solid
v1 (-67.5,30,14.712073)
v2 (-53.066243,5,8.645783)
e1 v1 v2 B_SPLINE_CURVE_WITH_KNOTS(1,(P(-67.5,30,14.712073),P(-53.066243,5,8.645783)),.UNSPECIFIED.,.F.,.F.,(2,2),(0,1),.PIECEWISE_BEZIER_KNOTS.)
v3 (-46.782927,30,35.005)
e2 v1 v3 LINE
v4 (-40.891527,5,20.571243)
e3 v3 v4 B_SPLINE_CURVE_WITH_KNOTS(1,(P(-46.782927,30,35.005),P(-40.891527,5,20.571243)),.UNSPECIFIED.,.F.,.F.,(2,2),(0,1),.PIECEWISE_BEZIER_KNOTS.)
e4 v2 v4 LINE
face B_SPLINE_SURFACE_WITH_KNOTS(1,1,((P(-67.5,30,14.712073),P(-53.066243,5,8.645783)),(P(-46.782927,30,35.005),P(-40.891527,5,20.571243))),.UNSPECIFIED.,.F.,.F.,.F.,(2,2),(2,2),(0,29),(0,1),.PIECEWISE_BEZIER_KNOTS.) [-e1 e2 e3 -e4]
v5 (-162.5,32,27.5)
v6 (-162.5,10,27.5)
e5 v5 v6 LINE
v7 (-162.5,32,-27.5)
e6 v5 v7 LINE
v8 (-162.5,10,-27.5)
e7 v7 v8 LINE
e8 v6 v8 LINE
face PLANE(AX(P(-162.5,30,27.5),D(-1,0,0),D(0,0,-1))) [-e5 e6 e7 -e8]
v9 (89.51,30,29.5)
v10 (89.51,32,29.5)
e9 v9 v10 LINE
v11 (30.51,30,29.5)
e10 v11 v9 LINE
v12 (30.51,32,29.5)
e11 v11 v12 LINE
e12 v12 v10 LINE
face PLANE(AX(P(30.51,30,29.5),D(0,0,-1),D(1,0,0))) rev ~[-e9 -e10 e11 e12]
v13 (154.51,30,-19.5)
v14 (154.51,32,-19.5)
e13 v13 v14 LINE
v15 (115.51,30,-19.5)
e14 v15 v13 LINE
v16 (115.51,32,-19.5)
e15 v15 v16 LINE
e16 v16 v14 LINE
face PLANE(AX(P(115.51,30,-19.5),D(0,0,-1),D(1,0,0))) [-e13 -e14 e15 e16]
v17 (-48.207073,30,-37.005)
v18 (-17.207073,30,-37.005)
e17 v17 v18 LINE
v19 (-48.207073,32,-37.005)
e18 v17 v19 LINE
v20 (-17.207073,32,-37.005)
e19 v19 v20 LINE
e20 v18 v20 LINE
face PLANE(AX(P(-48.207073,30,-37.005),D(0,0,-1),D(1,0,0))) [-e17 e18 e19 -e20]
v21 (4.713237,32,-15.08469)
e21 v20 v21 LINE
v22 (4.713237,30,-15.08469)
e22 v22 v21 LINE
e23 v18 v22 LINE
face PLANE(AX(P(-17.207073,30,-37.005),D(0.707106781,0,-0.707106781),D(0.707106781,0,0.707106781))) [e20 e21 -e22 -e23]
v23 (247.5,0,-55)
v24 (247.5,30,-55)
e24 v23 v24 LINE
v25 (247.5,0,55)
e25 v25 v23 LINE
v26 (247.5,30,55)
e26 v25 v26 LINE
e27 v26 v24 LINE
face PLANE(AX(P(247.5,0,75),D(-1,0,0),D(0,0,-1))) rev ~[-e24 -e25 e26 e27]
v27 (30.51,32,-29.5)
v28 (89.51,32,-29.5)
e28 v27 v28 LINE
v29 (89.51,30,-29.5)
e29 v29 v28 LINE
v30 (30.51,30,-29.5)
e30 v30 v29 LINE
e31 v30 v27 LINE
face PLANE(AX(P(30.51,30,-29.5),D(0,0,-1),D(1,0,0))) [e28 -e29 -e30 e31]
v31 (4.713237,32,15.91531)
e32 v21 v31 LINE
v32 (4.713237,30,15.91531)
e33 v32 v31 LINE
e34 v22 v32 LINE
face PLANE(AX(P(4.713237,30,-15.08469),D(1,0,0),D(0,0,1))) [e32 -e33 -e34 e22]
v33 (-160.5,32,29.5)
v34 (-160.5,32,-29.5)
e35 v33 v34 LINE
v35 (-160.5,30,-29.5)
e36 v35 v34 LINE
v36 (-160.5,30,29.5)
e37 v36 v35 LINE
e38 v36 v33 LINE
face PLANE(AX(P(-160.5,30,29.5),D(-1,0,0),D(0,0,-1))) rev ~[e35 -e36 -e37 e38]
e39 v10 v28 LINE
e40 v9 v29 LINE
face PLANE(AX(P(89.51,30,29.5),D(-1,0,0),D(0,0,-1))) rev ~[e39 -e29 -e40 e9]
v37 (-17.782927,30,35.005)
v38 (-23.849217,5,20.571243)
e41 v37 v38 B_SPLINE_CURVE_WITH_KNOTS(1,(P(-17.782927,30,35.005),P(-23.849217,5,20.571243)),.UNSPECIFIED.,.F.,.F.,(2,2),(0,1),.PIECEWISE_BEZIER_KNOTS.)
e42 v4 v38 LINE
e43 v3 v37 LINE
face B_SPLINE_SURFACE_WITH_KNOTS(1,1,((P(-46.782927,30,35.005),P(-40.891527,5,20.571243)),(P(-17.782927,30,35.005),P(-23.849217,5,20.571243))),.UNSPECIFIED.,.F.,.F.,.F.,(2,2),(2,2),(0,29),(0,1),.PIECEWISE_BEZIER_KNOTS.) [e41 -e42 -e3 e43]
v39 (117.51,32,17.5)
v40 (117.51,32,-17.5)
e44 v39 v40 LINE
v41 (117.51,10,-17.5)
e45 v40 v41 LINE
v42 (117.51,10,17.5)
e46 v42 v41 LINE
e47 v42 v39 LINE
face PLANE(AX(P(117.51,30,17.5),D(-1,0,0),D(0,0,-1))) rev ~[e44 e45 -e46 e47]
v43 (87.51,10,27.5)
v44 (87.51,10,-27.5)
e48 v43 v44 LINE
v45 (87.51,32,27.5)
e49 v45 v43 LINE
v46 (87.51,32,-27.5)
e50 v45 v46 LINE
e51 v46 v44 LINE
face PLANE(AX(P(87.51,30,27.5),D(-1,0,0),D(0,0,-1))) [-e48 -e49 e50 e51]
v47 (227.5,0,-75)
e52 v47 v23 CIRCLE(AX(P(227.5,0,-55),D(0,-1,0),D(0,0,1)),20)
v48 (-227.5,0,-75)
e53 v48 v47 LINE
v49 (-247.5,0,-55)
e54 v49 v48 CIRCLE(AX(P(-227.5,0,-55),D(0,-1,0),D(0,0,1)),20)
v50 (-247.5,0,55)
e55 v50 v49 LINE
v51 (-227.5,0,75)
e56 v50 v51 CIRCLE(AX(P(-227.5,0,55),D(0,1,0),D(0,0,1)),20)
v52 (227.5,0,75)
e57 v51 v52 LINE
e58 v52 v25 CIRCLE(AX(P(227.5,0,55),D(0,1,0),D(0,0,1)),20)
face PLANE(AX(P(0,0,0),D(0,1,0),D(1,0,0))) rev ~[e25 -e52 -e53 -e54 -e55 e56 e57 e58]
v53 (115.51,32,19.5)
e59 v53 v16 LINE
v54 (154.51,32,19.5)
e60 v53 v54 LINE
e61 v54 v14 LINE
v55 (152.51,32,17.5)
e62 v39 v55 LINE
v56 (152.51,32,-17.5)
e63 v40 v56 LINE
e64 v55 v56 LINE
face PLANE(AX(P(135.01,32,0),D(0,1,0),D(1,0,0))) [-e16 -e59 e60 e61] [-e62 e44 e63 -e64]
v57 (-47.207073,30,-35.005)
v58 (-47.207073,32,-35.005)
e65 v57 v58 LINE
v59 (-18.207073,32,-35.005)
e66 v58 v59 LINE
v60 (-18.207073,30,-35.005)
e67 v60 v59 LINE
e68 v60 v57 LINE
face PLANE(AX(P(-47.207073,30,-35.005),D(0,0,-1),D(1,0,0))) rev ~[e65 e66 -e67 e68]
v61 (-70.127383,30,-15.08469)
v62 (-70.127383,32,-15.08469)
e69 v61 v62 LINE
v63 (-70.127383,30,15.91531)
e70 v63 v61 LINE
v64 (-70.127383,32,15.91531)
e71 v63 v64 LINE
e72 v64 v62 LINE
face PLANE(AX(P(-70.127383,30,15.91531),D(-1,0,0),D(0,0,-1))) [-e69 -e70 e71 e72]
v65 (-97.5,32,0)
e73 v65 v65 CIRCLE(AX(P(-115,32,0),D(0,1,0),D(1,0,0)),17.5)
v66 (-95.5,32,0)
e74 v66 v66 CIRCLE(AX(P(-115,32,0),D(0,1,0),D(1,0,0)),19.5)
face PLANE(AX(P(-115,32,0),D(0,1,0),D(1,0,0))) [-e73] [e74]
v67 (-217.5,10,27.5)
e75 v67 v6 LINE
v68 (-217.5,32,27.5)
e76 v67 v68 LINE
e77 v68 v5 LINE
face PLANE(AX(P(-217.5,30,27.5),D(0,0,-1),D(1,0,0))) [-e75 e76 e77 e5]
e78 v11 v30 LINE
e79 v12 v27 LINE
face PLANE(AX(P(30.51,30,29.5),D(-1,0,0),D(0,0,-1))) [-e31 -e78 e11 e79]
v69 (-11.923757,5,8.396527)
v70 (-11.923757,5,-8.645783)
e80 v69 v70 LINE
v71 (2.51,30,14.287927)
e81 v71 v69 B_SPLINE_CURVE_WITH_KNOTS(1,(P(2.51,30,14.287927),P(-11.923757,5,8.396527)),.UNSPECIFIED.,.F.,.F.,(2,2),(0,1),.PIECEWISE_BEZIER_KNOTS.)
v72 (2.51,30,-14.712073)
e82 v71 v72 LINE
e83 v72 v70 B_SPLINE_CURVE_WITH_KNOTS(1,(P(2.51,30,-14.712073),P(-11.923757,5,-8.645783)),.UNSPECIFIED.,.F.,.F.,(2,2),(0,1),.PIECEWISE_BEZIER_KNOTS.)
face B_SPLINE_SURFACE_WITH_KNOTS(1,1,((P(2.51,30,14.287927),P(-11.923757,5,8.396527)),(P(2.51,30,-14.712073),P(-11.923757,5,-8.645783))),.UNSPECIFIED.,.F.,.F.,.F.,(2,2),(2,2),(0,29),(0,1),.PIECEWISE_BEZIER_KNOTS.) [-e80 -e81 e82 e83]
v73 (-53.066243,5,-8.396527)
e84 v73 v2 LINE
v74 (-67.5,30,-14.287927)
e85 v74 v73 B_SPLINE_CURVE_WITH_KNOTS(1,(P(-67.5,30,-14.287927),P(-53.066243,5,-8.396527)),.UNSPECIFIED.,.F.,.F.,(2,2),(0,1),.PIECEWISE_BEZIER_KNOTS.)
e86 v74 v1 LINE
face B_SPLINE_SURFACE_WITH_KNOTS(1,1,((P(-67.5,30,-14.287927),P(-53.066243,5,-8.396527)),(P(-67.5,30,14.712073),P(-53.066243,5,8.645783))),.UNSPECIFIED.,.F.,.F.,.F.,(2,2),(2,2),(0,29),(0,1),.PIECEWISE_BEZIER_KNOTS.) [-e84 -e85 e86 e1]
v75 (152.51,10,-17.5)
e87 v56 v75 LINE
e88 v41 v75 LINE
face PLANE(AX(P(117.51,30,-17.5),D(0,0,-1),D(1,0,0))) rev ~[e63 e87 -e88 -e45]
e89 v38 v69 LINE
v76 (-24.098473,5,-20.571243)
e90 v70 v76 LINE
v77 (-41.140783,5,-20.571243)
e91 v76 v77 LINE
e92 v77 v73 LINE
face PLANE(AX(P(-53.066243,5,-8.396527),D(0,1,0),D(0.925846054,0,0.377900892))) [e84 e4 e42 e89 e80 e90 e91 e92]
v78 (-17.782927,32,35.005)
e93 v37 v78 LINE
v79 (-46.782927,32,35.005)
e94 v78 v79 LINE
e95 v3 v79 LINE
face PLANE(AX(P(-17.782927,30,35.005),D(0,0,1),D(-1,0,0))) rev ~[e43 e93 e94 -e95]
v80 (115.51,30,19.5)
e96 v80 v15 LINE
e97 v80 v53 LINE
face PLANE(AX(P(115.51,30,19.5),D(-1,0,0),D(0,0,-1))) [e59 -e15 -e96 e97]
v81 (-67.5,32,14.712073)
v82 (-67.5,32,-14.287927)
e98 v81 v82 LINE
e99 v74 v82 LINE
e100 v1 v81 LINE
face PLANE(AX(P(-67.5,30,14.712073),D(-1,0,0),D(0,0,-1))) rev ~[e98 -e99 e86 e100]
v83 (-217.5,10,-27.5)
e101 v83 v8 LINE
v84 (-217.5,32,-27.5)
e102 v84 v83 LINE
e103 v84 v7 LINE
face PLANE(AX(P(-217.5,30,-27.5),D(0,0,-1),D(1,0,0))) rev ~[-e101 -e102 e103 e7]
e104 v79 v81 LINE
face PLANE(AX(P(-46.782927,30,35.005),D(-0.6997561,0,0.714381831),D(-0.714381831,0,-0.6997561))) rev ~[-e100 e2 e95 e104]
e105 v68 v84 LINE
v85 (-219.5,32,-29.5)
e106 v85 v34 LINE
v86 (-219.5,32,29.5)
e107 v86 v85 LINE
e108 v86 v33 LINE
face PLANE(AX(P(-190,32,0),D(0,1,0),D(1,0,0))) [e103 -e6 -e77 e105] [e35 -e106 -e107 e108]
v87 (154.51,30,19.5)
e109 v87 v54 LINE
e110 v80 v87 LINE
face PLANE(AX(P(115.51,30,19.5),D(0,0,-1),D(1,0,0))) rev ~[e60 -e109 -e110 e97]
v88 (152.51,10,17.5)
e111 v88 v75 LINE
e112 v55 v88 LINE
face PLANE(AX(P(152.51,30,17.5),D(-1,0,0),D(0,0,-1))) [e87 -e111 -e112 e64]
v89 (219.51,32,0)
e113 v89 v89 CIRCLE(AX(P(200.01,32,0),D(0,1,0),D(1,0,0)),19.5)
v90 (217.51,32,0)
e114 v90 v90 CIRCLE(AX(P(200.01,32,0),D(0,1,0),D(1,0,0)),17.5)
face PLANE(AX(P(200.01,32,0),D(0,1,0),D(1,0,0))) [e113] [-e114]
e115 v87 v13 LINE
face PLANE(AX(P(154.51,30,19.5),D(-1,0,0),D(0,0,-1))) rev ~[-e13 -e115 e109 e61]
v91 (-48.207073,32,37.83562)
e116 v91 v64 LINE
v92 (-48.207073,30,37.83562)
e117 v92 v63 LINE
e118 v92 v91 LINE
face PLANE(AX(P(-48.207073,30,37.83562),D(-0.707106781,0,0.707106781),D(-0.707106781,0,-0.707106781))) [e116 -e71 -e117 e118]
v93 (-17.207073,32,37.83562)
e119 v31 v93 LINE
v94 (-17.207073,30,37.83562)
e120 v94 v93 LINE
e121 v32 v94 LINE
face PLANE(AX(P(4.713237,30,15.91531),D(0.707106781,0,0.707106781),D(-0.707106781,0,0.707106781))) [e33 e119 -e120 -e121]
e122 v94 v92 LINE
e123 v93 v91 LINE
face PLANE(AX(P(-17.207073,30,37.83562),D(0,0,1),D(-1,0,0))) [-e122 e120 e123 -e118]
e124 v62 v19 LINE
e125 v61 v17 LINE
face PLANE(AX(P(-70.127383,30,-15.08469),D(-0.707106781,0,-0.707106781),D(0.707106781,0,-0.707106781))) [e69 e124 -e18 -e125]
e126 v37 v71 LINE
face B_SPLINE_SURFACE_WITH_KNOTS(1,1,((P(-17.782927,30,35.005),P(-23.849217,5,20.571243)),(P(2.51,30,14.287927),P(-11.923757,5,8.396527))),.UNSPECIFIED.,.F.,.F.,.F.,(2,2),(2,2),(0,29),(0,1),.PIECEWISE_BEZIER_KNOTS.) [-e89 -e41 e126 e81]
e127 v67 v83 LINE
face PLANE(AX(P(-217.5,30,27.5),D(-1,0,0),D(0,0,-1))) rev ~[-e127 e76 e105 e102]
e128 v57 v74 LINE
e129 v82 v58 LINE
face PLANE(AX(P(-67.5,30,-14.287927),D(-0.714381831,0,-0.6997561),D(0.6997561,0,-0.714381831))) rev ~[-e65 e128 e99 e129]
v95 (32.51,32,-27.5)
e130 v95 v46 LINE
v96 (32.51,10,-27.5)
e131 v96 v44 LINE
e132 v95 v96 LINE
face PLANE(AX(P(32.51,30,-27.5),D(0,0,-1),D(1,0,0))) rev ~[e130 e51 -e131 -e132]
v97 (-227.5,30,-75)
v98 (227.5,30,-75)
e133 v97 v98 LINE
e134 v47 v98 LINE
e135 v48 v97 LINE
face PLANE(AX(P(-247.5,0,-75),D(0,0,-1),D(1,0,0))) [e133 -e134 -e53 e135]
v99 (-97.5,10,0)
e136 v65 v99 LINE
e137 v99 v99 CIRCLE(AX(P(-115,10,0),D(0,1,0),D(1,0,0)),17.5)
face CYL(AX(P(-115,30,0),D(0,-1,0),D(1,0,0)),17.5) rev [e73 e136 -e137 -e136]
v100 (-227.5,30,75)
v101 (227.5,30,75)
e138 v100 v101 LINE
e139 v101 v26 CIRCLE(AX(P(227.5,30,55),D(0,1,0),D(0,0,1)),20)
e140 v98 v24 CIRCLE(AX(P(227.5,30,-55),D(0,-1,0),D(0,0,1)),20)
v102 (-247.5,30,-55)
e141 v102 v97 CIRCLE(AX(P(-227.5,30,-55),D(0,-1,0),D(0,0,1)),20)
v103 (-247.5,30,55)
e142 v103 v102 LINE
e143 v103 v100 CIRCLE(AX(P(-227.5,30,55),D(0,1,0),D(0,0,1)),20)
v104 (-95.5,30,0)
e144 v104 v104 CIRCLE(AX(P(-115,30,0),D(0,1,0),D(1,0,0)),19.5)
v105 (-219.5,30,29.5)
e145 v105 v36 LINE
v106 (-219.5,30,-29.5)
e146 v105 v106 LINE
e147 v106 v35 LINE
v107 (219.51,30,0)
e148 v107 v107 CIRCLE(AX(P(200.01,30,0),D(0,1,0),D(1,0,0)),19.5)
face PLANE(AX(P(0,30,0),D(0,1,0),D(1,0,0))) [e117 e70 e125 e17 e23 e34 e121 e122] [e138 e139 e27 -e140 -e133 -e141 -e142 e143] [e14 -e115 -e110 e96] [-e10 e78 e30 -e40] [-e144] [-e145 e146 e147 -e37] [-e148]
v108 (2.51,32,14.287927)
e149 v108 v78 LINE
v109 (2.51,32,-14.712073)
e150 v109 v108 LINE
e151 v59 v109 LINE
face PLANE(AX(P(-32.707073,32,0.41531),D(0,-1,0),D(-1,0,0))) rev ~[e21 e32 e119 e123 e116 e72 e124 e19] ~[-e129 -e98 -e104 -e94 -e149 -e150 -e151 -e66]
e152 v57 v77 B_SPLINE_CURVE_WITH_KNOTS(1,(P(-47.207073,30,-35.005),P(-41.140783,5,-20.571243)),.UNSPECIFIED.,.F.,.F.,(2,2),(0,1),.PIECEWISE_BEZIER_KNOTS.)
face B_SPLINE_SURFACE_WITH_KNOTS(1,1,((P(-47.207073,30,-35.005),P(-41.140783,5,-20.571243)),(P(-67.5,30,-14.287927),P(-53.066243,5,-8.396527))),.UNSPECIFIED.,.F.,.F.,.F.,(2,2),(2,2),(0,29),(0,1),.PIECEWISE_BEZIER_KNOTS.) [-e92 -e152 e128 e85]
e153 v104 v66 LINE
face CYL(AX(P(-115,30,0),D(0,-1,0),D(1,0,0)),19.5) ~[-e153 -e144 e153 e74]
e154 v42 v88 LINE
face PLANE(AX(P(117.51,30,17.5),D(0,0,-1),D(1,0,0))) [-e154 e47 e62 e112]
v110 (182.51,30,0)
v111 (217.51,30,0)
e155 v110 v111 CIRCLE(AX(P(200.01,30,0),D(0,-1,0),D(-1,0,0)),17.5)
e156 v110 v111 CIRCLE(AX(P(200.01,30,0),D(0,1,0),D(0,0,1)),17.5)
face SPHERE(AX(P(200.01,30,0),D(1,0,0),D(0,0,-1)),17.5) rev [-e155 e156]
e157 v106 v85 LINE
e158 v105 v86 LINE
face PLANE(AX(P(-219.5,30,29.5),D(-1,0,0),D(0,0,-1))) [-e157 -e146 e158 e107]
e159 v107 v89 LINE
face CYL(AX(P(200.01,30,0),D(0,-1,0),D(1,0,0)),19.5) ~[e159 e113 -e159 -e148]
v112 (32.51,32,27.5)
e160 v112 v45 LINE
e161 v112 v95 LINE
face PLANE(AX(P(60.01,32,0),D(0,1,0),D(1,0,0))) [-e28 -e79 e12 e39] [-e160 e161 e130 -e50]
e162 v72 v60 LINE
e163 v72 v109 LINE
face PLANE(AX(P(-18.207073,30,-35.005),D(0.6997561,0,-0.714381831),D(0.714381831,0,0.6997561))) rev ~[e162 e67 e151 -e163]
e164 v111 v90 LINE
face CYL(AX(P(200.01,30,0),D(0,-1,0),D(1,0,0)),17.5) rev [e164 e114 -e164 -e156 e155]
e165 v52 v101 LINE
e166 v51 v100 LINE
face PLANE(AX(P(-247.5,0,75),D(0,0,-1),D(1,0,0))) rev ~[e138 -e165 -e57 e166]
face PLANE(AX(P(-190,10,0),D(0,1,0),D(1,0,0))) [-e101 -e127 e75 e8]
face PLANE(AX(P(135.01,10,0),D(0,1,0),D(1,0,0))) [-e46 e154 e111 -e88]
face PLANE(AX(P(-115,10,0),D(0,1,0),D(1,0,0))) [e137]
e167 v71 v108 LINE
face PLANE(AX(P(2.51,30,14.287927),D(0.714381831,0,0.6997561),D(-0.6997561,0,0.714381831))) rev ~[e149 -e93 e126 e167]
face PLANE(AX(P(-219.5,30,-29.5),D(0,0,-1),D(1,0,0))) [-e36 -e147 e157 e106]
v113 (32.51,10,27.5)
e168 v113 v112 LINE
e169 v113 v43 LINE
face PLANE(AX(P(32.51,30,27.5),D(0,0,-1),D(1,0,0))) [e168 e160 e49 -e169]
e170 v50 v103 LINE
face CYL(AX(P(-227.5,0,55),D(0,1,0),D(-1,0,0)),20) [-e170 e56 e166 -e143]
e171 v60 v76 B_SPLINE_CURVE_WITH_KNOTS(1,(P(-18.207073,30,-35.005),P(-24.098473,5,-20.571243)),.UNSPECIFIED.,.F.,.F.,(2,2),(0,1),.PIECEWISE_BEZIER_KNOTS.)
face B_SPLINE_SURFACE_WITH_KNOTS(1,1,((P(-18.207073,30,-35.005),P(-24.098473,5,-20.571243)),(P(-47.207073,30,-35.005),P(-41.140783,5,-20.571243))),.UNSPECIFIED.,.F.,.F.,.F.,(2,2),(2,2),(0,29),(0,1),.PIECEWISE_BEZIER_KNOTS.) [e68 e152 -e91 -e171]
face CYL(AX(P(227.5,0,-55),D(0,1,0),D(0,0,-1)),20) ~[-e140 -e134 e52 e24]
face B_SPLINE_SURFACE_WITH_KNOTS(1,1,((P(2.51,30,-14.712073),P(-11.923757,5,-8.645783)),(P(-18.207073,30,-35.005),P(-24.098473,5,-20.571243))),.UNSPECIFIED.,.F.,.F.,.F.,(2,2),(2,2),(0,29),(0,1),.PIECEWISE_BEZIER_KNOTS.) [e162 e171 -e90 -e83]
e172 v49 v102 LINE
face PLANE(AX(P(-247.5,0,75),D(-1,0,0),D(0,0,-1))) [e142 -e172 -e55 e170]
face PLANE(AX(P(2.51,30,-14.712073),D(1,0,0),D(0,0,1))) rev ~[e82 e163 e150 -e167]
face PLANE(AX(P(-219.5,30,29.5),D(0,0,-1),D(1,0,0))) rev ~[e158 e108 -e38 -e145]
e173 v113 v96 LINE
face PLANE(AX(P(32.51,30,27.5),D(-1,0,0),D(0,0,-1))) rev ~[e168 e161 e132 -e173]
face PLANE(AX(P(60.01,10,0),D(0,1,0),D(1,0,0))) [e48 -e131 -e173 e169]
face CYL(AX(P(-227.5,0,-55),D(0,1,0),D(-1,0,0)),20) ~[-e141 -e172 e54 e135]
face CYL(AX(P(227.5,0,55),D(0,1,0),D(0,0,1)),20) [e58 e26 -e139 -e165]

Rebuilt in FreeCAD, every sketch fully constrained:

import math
import FreeCAD as App
import Part
import Sketcher
from FreeCAD import Vector
Q = App.Units.Quantity


def edges_at(feature, points):
    """Names of the edges that pass closest to the given points."""
    edges = feature.Shape.Edges
    near = lambda p: min(range(len(edges)), key=lambda i: edges[i].distToShape(Part.Vertex(*p))[0])
    return sorted({f"Edge{near(p) + 1}" for p in points})

doc = App.newDocument("Part")
body = doc.addObject("PartDesign::Body", "Body")

sketch1 = body.newObject("Sketcher::SketchObject", "Sketch")
sketch1.AttachmentSupport = (doc.getObject("XZ_Plane"), [""])
sketch1.MapMode = "FlatFace"
sketch1.addGeometry([
    Part.LineSegment(Vector(-247.5, -75, 0), Vector(-247.5, 75, 0)),
    Part.LineSegment(Vector(-247.5, 75, 0), Vector(247.5, 75, 0)),
    Part.LineSegment(Vector(247.5, 75, 0), Vector(247.5, -75, 0)),
    Part.LineSegment(Vector(247.5, -75, 0), Vector(-247.5, -75, 0)),
], False)
sketch1.addConstraint([
    Sketcher.Constraint("Coincident", 0, 2, 1, 1),
    Sketcher.Constraint("Coincident", 1, 2, 2, 1),
    Sketcher.Constraint("Coincident", 2, 2, 3, 1),
    Sketcher.Constraint("Coincident", 3, 2, 0, 1),
    Sketcher.Constraint("Vertical", 0),
    Sketcher.Constraint("Horizontal", 1),
    Sketcher.Constraint("Vertical", 2),
    Sketcher.Constraint("Horizontal", 3),
    Sketcher.Constraint("Symmetric", 0, 2, 2, 2, -1, 1),
    Sketcher.Constraint("DistanceX", 1, 1, 1, 2, Q("495 mm")),
    Sketcher.Constraint("DistanceY", 0, 1, 0, 2, Q("150 mm")),
])
pad1 = body.newObject("PartDesign::Pad", "Pad")
pad1.Profile = sketch1
pad1.Length = 30
pad1.Reversed = True

sketch2 = body.newObject("Sketcher::SketchObject", "Sketch001")
sketch2.AttachmentSupport = (doc.getObject("XZ_Plane"), [""])
sketch2.MapMode = "FlatFace"
sketch2.AttachmentOffset = App.Placement(Vector(0, 0, -30), App.Rotation())
sketch2.addGeometry([
    Part.Circle(Vector(-115, 0, 0), Vector(0, 0, 1), 17.5),
    Part.LineSegment(Vector(-217.5, -27.5, 0), Vector(-217.5, 27.5, 0)),
    Part.LineSegment(Vector(-217.5, 27.5, 0), Vector(-162.5, 27.5, 0)),
    Part.LineSegment(Vector(-162.5, 27.5, 0), Vector(-162.5, -27.5, 0)),
    Part.LineSegment(Vector(-162.5, -27.5, 0), Vector(-217.5, -27.5, 0)),
], False)
sketch2.addConstraint([
    Sketcher.Constraint("Coincident", 1, 2, 2, 1),
    Sketcher.Constraint("Coincident", 2, 2, 3, 1),
    Sketcher.Constraint("Coincident", 3, 2, 4, 1),
    Sketcher.Constraint("Coincident", 4, 2, 1, 1),
    Sketcher.Constraint("Vertical", 1),
    Sketcher.Constraint("Horizontal", 2),
    Sketcher.Constraint("Vertical", 3),
    Sketcher.Constraint("Horizontal", 4),
    Sketcher.Constraint("PointOnObject", 0, 3, -1),
    Sketcher.Constraint("Equal", 4, 1),
    Sketcher.Constraint("Diameter", 0, Q("35 mm")),
    Sketcher.Constraint("DistanceX", 2, 1, 2, 2, Q("55 mm")),
    Sketcher.Constraint("DistanceX", 0, 3, -1, 1, Q("115 mm")),
    Sketcher.Constraint("DistanceX", 1, 2, -1, 1, Q("217.5 mm")),
    Sketcher.Constraint("DistanceY", -1, 1, 1, 2, Q("27.5 mm")),
])
pocket1 = body.newObject("PartDesign::Pocket", "Pocket")
pocket1.Profile = sketch2
pocket1.Length = 20
pocket1.Reversed = True

sketch3 = body.newObject("Sketcher::SketchObject", "Sketch002")
sketch3.AttachmentSupport = (doc.getObject("XZ_Plane"), [""])
sketch3.MapMode = "FlatFace"
sketch3.AttachmentOffset = App.Placement(Vector(0, 0, -30), App.Rotation())
sketch3.addGeometry([
    Part.LineSegment(Vector(-67.5, -14.287927, 0), Vector(-67.5, 14.712073, 0)),
    Part.LineSegment(Vector(-67.5, 14.712073, 0), Vector(-46.782927, 35.005, 0)),
    Part.LineSegment(Vector(-46.782927, 35.005, 0), Vector(-17.782927, 35.005, 0)),
    Part.LineSegment(Vector(-17.782927, 35.005, 0), Vector(2.51, 14.287927, 0)),
    Part.LineSegment(Vector(2.51, 14.287927, 0), Vector(2.51, -14.712073, 0)),
    Part.LineSegment(Vector(2.51, -14.712073, 0), Vector(-18.207073, -35.005, 0)),
    Part.LineSegment(Vector(-18.207073, -35.005, 0), Vector(-47.207073, -35.005, 0)),
    Part.LineSegment(Vector(-47.207073, -35.005, 0), Vector(-67.5, -14.287927, 0)),
], False)
sketch3.addConstraint([
    Sketcher.Constraint("Coincident", 0, 2, 1, 1),
    Sketcher.Constraint("Coincident", 1, 2, 2, 1),
    Sketcher.Constraint("Coincident", 2, 2, 3, 1),
    Sketcher.Constraint("Coincident", 3, 2, 4, 1),
    Sketcher.Constraint("Coincident", 4, 2, 5, 1),
    Sketcher.Constraint("Coincident", 5, 2, 6, 1),
    Sketcher.Constraint("Coincident", 6, 2, 7, 1),
    Sketcher.Constraint("Coincident", 7, 2, 0, 1),
    Sketcher.Constraint("Vertical", 0),
    Sketcher.Constraint("Horizontal", 2),
    Sketcher.Constraint("Vertical", 4),
    Sketcher.Constraint("Horizontal", 6),
    Sketcher.Constraint("Perpendicular", 1, 3),
    Sketcher.Constraint("Perpendicular", 3, 5),
    Sketcher.Constraint("Perpendicular", 5, 7),
    Sketcher.Constraint("Equal", 2, 6),
    Sketcher.Constraint("Equal", 6, 0),
    Sketcher.Constraint("Equal", 0, 4),
    Sketcher.Constraint("Equal", 1, 3),
    Sketcher.Constraint("DistanceX", 2, 1, 2, 2, Q("29 mm")),
    Sketcher.Constraint("Distance", 1, Q("29 mm")),
    Sketcher.Constraint("DistanceX", 0, 2, -1, 1, Q("67.5 mm")),
    Sketcher.Constraint("DistanceX", -1, 1, 3, 2, Q("2.51 mm")),
    Sketcher.Constraint("DistanceY", -1, 1, 1, 2, Q("35.005 mm")),
])
pocket2 = body.newObject("PartDesign::Pocket", "Pocket001")
pocket2.Profile = sketch3
pocket2.Length = 25
pocket2.Reversed = True
pocket2.TaperAngle = -30

sketch4 = body.newObject("Sketcher::SketchObject", "Sketch003")
sketch4.AttachmentSupport = (doc.getObject("XZ_Plane"), [""])
sketch4.MapMode = "FlatFace"
sketch4.AttachmentOffset = App.Placement(Vector(0, 0, -30), App.Rotation())
sketch4.addGeometry([
    Part.LineSegment(Vector(32.51, -27.5, 0), Vector(32.51, 27.5, 0)),
    Part.LineSegment(Vector(32.51, 27.5, 0), Vector(87.51, 27.5, 0)),
    Part.LineSegment(Vector(87.51, 27.5, 0), Vector(87.51, -27.5, 0)),
    Part.LineSegment(Vector(87.51, -27.5, 0), Vector(32.51, -27.5, 0)),
    Part.LineSegment(Vector(117.51, -17.5, 0), Vector(117.51, 17.5, 0)),
    Part.LineSegment(Vector(117.51, 17.5, 0), Vector(152.51, 17.5, 0)),
    Part.LineSegment(Vector(152.51, 17.5, 0), Vector(152.51, -17.5, 0)),
    Part.LineSegment(Vector(152.51, -17.5, 0), Vector(117.51, -17.5, 0)),
], False)
sketch4.addConstraint([
    Sketcher.Constraint("Coincident", 0, 2, 1, 1),
    Sketcher.Constraint("Coincident", 1, 2, 2, 1),
    Sketcher.Constraint("Coincident", 2, 2, 3, 1),
    Sketcher.Constraint("Coincident", 3, 2, 0, 1),
    Sketcher.Constraint("Coincident", 4, 2, 5, 1),
    Sketcher.Constraint("Coincident", 5, 2, 6, 1),
    Sketcher.Constraint("Coincident", 6, 2, 7, 1),
    Sketcher.Constraint("Coincident", 7, 2, 4, 1),
    Sketcher.Constraint("Vertical", 0),
    Sketcher.Constraint("Horizontal", 1),
    Sketcher.Constraint("Vertical", 2),
    Sketcher.Constraint("Horizontal", 3),
    Sketcher.Constraint("Vertical", 4),
    Sketcher.Constraint("Horizontal", 5),
    Sketcher.Constraint("Vertical", 6),
    Sketcher.Constraint("Horizontal", 7),
    Sketcher.Constraint("Equal", 3, 0),
    Sketcher.Constraint("Equal", 7, 4),
    Sketcher.Constraint("DistanceX", 1, 1, 1, 2, Q("55 mm")),
    Sketcher.Constraint("DistanceX", 5, 1, 5, 2, Q("35 mm")),
    Sketcher.Constraint("DistanceX", 1, 2, 4, 2, Q("30 mm")),
    Sketcher.Constraint("DistanceY", 4, 2, 1, 2, Q("10 mm")),
    Sketcher.Constraint("DistanceY", -1, 1, 0, 2, Q("27.5 mm")),
    Sketcher.Constraint("DistanceX", -1, 1, 0, 2, Q("32.51 mm")),
])
pocket3 = body.newObject("PartDesign::Pocket", "Pocket002")
pocket3.Profile = sketch4
pocket3.Length = 20
pocket3.Reversed = True

sketch5 = body.newObject("Sketcher::SketchObject", "Sketch004")
sketch5.AttachmentSupport = (doc.getObject("XZ_Plane"), [""])
sketch5.MapMode = "FlatFace"
sketch5.AttachmentOffset = App.Placement(Vector(0, 0, -30), App.Rotation())
sketch5.addGeometry([
    Part.LineSegment(Vector(182.51, 0, 0), Vector(217.51, 0, 0)),
    Part.ArcOfCircle(Part.Circle(Vector(200.01, 0, 0), Vector(0, 0, 1), 17.5), math.radians(180), math.radians(360)),
], False)
sketch5.addConstraint([
    Sketcher.Constraint("Coincident", 0, 1, 1, 1),
    Sketcher.Constraint("Coincident", 1, 2, 0, 2),
    Sketcher.Constraint("Horizontal", 0),
    Sketcher.Constraint("PointOnObject", 1, 3, -1),
    Sketcher.Constraint("PointOnObject", 0, 1, -1),
    Sketcher.Constraint("Radius", 1, Q("17.5 mm")),
    Sketcher.Constraint("DistanceX", -1, 1, 1, 3, Q("200.01 mm")),
])
groove = body.newObject("PartDesign::Groove", "Groove")
groove.Profile = sketch5
groove.ReferenceAxis = (sketch5, ["H_Axis"])
groove.Angle = 360
doc.recompute()

fillet = body.newObject("PartDesign::Fillet", "Fillet")
fillet.Base = (groove, edges_at(groove, [
    (247.5, 15, 75),
    (-247.5, 15, 75),
    (-247.5, 15, -75),
    (247.5, 15, -75),
]))
fillet.Radius = 20

sketch6 = body.newObject("Sketcher::SketchObject", "Sketch005")
sketch6.AttachmentSupport = (doc.getObject("XZ_Plane"), [""])
sketch6.MapMode = "FlatFace"
sketch6.AttachmentOffset = App.Placement(Vector(0, 0, -30), App.Rotation())
sketch6.addGeometry([
    Part.LineSegment(Vector(-219.5, -29.5, 0), Vector(-219.5, 29.5, 0)),
    Part.LineSegment(Vector(-219.5, 29.5, 0), Vector(-160.5, 29.5, 0)),
    Part.LineSegment(Vector(-160.5, 29.5, 0), Vector(-160.5, -29.5, 0)),
    Part.LineSegment(Vector(-160.5, -29.5, 0), Vector(-219.5, -29.5, 0)),
    Part.LineSegment(Vector(-162.5, 27.5, 0), Vector(-217.5, 27.5, 0)),
    Part.LineSegment(Vector(-217.5, 27.5, 0), Vector(-217.5, -27.5, 0)),
    Part.LineSegment(Vector(-217.5, -27.5, 0), Vector(-162.5, -27.5, 0)),
    Part.LineSegment(Vector(-162.5, -27.5, 0), Vector(-162.5, 27.5, 0)),
], False)
sketch6.addConstraint([
    Sketcher.Constraint("Coincident", 0, 2, 1, 1),
    Sketcher.Constraint("Coincident", 1, 2, 2, 1),
    Sketcher.Constraint("Coincident", 2, 2, 3, 1),
    Sketcher.Constraint("Coincident", 3, 2, 0, 1),
    Sketcher.Constraint("Coincident", 4, 2, 5, 1),
    Sketcher.Constraint("Coincident", 5, 2, 6, 1),
    Sketcher.Constraint("Coincident", 6, 2, 7, 1),
    Sketcher.Constraint("Coincident", 7, 2, 4, 1),
    Sketcher.Constraint("Vertical", 0),
    Sketcher.Constraint("Horizontal", 1),
    Sketcher.Constraint("Vertical", 2),
    Sketcher.Constraint("Horizontal", 3),
    Sketcher.Constraint("Horizontal", 4),
    Sketcher.Constraint("Vertical", 5),
    Sketcher.Constraint("Horizontal", 6),
    Sketcher.Constraint("Vertical", 7),
    Sketcher.Constraint("Equal", 3, 0),
    Sketcher.Constraint("Equal", 6, 5),
    Sketcher.Constraint("DistanceX", 1, 1, 1, 2, Q("59 mm")),
    Sketcher.Constraint("DistanceX", 4, 2, 4, 1, Q("55 mm")),
    Sketcher.Constraint("DistanceX", 0, 2, 4, 2, Q("2 mm")),
    Sketcher.Constraint("DistanceY", 4, 2, 0, 2, Q("2 mm")),
    Sketcher.Constraint("DistanceX", 0, 2, -1, 1, Q("219.5 mm")),
    Sketcher.Constraint("DistanceY", -1, 1, 0, 2, Q("29.5 mm")),
])
pad2 = body.newObject("PartDesign::Pad", "Pad001")
pad2.Profile = sketch6
pad2.Length = 2
pad2.Reversed = True

sketch7 = body.newObject("Sketcher::SketchObject", "Sketch006")
sketch7.AttachmentSupport = (doc.getObject("XZ_Plane"), [""])
sketch7.MapMode = "FlatFace"
sketch7.AttachmentOffset = App.Placement(Vector(0, 0, -30), App.Rotation())
sketch7.addGeometry([
    Part.Circle(Vector(-115, 0, 0), Vector(0, 0, 1), 19.5),
    Part.Circle(Vector(-115, 0, 0), Vector(0, 0, 1), 17.5),
], False)
sketch7.addConstraint([
    Sketcher.Constraint("Coincident", 1, 3, 0, 3),
    Sketcher.Constraint("PointOnObject", 0, 3, -1),
    Sketcher.Constraint("Diameter", 0, Q("39 mm")),
    Sketcher.Constraint("Diameter", 1, Q("35 mm")),
    Sketcher.Constraint("DistanceX", 0, 3, -1, 1, Q("115 mm")),
])
pad3 = body.newObject("PartDesign::Pad", "Pad002")
pad3.Profile = sketch7
pad3.Length = 2
pad3.Reversed = True

sketch8 = body.newObject("Sketcher::SketchObject", "Sketch007")
sketch8.AttachmentSupport = (doc.getObject("XZ_Plane"), [""])
sketch8.MapMode = "FlatFace"
sketch8.AttachmentOffset = App.Placement(Vector(0, 0, -30), App.Rotation())
sketch8.addGeometry([
    Part.LineSegment(Vector(-17.207073, -37.005, 0), Vector(-48.207073, -37.005, 0)),
    Part.LineSegment(Vector(-48.207073, -37.005, 0), Vector(-70.127383, -15.08469, 0)),
    Part.LineSegment(Vector(-70.127383, -15.08469, 0), Vector(-70.127383, 15.91531, 0)),
    Part.LineSegment(Vector(-70.127383, 15.91531, 0), Vector(-48.207073, 37.83562, 0)),
    Part.LineSegment(Vector(-48.207073, 37.83562, 0), Vector(-17.207073, 37.83562, 0)),
    Part.LineSegment(Vector(-17.207073, 37.83562, 0), Vector(4.713237, 15.91531, 0)),
    Part.LineSegment(Vector(4.713237, 15.91531, 0), Vector(4.713237, -15.08469, 0)),
    Part.LineSegment(Vector(4.713237, -15.08469, 0), Vector(-17.207073, -37.005, 0)),
    Part.LineSegment(Vector(-47.207073, -35.005, 0), Vector(-18.207073, -35.005, 0)),
    Part.LineSegment(Vector(-18.207073, -35.005, 0), Vector(2.51, -14.712073, 0)),
    Part.LineSegment(Vector(2.51, -14.712073, 0), Vector(2.51, 14.287927, 0)),
    Part.LineSegment(Vector(2.51, 14.287927, 0), Vector(-17.782927, 35.005, 0)),
    Part.LineSegment(Vector(-17.782927, 35.005, 0), Vector(-46.782927, 35.005, 0)),
    Part.LineSegment(Vector(-46.782927, 35.005, 0), Vector(-67.5, 14.712073, 0)),
    Part.LineSegment(Vector(-67.5, 14.712073, 0), Vector(-67.5, -14.287927, 0)),
    Part.LineSegment(Vector(-67.5, -14.287927, 0), Vector(-47.207073, -35.005, 0)),
], False)
sketch8.addConstraint([
    Sketcher.Constraint("Coincident", 0, 2, 1, 1),
    Sketcher.Constraint("Coincident", 1, 2, 2, 1),
    Sketcher.Constraint("Coincident", 2, 2, 3, 1),
    Sketcher.Constraint("Coincident", 3, 2, 4, 1),
    Sketcher.Constraint("Coincident", 4, 2, 5, 1),
    Sketcher.Constraint("Coincident", 5, 2, 6, 1),
    Sketcher.Constraint("Coincident", 6, 2, 7, 1),
    Sketcher.Constraint("Coincident", 7, 2, 0, 1),
    Sketcher.Constraint("Coincident", 8, 2, 9, 1),
    Sketcher.Constraint("Coincident", 9, 2, 10, 1),
    Sketcher.Constraint("Coincident", 10, 2, 11, 1),
    Sketcher.Constraint("Coincident", 11, 2, 12, 1),
    Sketcher.Constraint("Coincident", 12, 2, 13, 1),
    Sketcher.Constraint("Coincident", 13, 2, 14, 1),
    Sketcher.Constraint("Coincident", 14, 2, 15, 1),
    Sketcher.Constraint("Coincident", 15, 2, 8, 1),
    Sketcher.Constraint("Horizontal", 0),
    Sketcher.Constraint("Vertical", 2),
    Sketcher.Constraint("Horizontal", 4),
    Sketcher.Constraint("Vertical", 6),
    Sketcher.Constraint("Horizontal", 8),
    Sketcher.Constraint("Vertical", 10),
    Sketcher.Constraint("Horizontal", 12),
    Sketcher.Constraint("Vertical", 14),
    Sketcher.Constraint("Perpendicular", 1, 3),
    Sketcher.Constraint("Perpendicular", 3, 5),
    Sketcher.Constraint("Perpendicular", 5, 7),
    Sketcher.Constraint("Perpendicular", 9, 11),
    Sketcher.Constraint("Perpendicular", 11, 13),
    Sketcher.Constraint("Perpendicular", 13, 15),
    Sketcher.Constraint("Horizontal", 2, 2, 5, 2),
    Sketcher.Constraint("Horizontal", 1, 2, 6, 2),
    Sketcher.Constraint("Vertical", 0, 2, 3, 2),
    Sketcher.Constraint("Vertical", 4, 2, 7, 2),
    Sketcher.Constraint("Equal", 8, 12),
    Sketcher.Constraint("Equal", 4, 2),
    Sketcher.Constraint("Equal", 12, 10),
    Sketcher.Constraint("Equal", 10, 14),
    Sketcher.Constraint("Equal", 9, 11),
    Sketcher.Constraint("DistanceX", 0, 2, 0, 1, Q("31 mm")),
    Sketcher.Constraint("DistanceX", 8, 1, 8, 2, Q("29 mm")),
    Sketcher.Constraint("Distance", 1, Q("31 mm")),
    Sketcher.Constraint("Distance", 9, Q("29 mm")),
    Sketcher.Constraint("DistanceX", 8, 2, 7, 2, Q("1 mm")),
    Sketcher.Constraint("DistanceY", 7, 2, 8, 2, Q("2 mm")),
    Sketcher.Constraint("DistanceX", 13, 2, -1, 1, Q("67.5 mm")),
    Sketcher.Constraint("DistanceX", -1, 1, 9, 2, Q("2.51 mm")),
    Sketcher.Constraint("DistanceY", 0, 2, -1, 1, Q("37.005 mm")),
])
pad4 = body.newObject("PartDesign::Pad", "Pad003")
pad4.Profile = sketch8
pad4.Length = 2
pad4.Reversed = True

sketch9 = body.newObject("Sketcher::SketchObject", "Sketch008")
sketch9.AttachmentSupport = (doc.getObject("XZ_Plane"), [""])
sketch9.MapMode = "FlatFace"
sketch9.AttachmentOffset = App.Placement(Vector(0, 0, -30), App.Rotation())
sketch9.addGeometry([
    Part.LineSegment(Vector(30.51, -29.5, 0), Vector(30.51, 29.5, 0)),
    Part.LineSegment(Vector(30.51, 29.5, 0), Vector(89.51, 29.5, 0)),
    Part.LineSegment(Vector(89.51, 29.5, 0), Vector(89.51, -29.5, 0)),
    Part.LineSegment(Vector(89.51, -29.5, 0), Vector(30.51, -29.5, 0)),
    Part.LineSegment(Vector(87.51, 27.5, 0), Vector(32.51, 27.5, 0)),
    Part.LineSegment(Vector(32.51, 27.5, 0), Vector(32.51, -27.5, 0)),
    Part.LineSegment(Vector(32.51, -27.5, 0), Vector(87.51, -27.5, 0)),
    Part.LineSegment(Vector(87.51, -27.5, 0), Vector(87.51, 27.5, 0)),
], False)
sketch9.addConstraint([
    Sketcher.Constraint("Coincident", 0, 2, 1, 1),
    Sketcher.Constraint("Coincident", 1, 2, 2, 1),
    Sketcher.Constraint("Coincident", 2, 2, 3, 1),
    Sketcher.Constraint("Coincident", 3, 2, 0, 1),
    Sketcher.Constraint("Coincident", 4, 2, 5, 1),
    Sketcher.Constraint("Coincident", 5, 2, 6, 1),
    Sketcher.Constraint("Coincident", 6, 2, 7, 1),
    Sketcher.Constraint("Coincident", 7, 2, 4, 1),
    Sketcher.Constraint("Vertical", 0),
    Sketcher.Constraint("Horizontal", 1),
    Sketcher.Constraint("Vertical", 2),
    Sketcher.Constraint("Horizontal", 3),
    Sketcher.Constraint("Horizontal", 4),
    Sketcher.Constraint("Vertical", 5),
    Sketcher.Constraint("Horizontal", 6),
    Sketcher.Constraint("Vertical", 7),
    Sketcher.Constraint("Equal", 3, 0),
    Sketcher.Constraint("Equal", 6, 5),
    Sketcher.Constraint("DistanceX", 1, 1, 1, 2, Q("59 mm")),
    Sketcher.Constraint("DistanceX", 4, 2, 4, 1, Q("55 mm")),
    Sketcher.Constraint("DistanceX", 0, 2, 4, 2, Q("2 mm")),
    Sketcher.Constraint("DistanceY", 4, 2, 0, 2, Q("2 mm")),
    Sketcher.Constraint("DistanceY", -1, 1, 0, 2, Q("29.5 mm")),
    Sketcher.Constraint("DistanceX", -1, 1, 0, 2, Q("30.51 mm")),
])
pad5 = body.newObject("PartDesign::Pad", "Pad004")
pad5.Profile = sketch9
pad5.Length = 2
pad5.Reversed = True

sketch10 = body.newObject("Sketcher::SketchObject", "Sketch009")
sketch10.AttachmentSupport = (doc.getObject("XZ_Plane"), [""])
sketch10.MapMode = "FlatFace"
sketch10.AttachmentOffset = App.Placement(Vector(0, 0, -30), App.Rotation())
sketch10.addGeometry([
    Part.LineSegment(Vector(115.51, -19.5, 0), Vector(115.51, 19.5, 0)),
    Part.LineSegment(Vector(115.51, 19.5, 0), Vector(154.51, 19.5, 0)),
    Part.LineSegment(Vector(154.51, 19.5, 0), Vector(154.51, -19.5, 0)),
    Part.LineSegment(Vector(154.51, -19.5, 0), Vector(115.51, -19.5, 0)),
    Part.LineSegment(Vector(152.51, 17.5, 0), Vector(117.51, 17.5, 0)),
    Part.LineSegment(Vector(117.51, 17.5, 0), Vector(117.51, -17.5, 0)),
    Part.LineSegment(Vector(117.51, -17.5, 0), Vector(152.51, -17.5, 0)),
    Part.LineSegment(Vector(152.51, -17.5, 0), Vector(152.51, 17.5, 0)),
], False)
sketch10.addConstraint([
    Sketcher.Constraint("Coincident", 0, 2, 1, 1),
    Sketcher.Constraint("Coincident", 1, 2, 2, 1),
    Sketcher.Constraint("Coincident", 2, 2, 3, 1),
    Sketcher.Constraint("Coincident", 3, 2, 0, 1),
    Sketcher.Constraint("Coincident", 4, 2, 5, 1),
    Sketcher.Constraint("Coincident", 5, 2, 6, 1),
    Sketcher.Constraint("Coincident", 6, 2, 7, 1),
    Sketcher.Constraint("Coincident", 7, 2, 4, 1),
    Sketcher.Constraint("Vertical", 0),
    Sketcher.Constraint("Horizontal", 1),
    Sketcher.Constraint("Vertical", 2),
    Sketcher.Constraint("Horizontal", 3),
    Sketcher.Constraint("Horizontal", 4),
    Sketcher.Constraint("Vertical", 5),
    Sketcher.Constraint("Horizontal", 6),
    Sketcher.Constraint("Vertical", 7),
    Sketcher.Constraint("Equal", 3, 0),
    Sketcher.Constraint("Equal", 6, 5),
    Sketcher.Constraint("DistanceX", 1, 1, 1, 2, Q("39 mm")),
    Sketcher.Constraint("DistanceX", 4, 2, 4, 1, Q("35 mm")),
    Sketcher.Constraint("DistanceX", 0, 2, 4, 2, Q("2 mm")),
    Sketcher.Constraint("DistanceY", 4, 2, 0, 2, Q("2 mm")),
    Sketcher.Constraint("DistanceY", -1, 1, 0, 2, Q("19.5 mm")),
    Sketcher.Constraint("DistanceX", -1, 1, 0, 2, Q("115.51 mm")),
])
pad6 = body.newObject("PartDesign::Pad", "Pad005")
pad6.Profile = sketch10
pad6.Length = 2
pad6.Reversed = True

sketch11 = body.newObject("Sketcher::SketchObject", "Sketch010")
sketch11.AttachmentSupport = (doc.getObject("XZ_Plane"), [""])
sketch11.MapMode = "FlatFace"
sketch11.AttachmentOffset = App.Placement(Vector(0, 0, -30), App.Rotation())
sketch11.addGeometry([
    Part.Circle(Vector(200.01, 0, 0), Vector(0, 0, 1), 19.5),
    Part.Circle(Vector(200.01, 0, 0), Vector(0, 0, 1), 17.5),
], False)
sketch11.addConstraint([
    Sketcher.Constraint("Coincident", 1, 3, 0, 3),
    Sketcher.Constraint("PointOnObject", 0, 3, -1),
    Sketcher.Constraint("Diameter", 0, Q("39 mm")),
    Sketcher.Constraint("Diameter", 1, Q("35 mm")),
    Sketcher.Constraint("DistanceX", -1, 1, 0, 3, Q("200.01 mm")),
])
pad7 = body.newObject("PartDesign::Pad", "Pad006")
pad7.Profile = sketch11
pad7.Length = 2
pad7.Reversed = True

doc.recompute()
